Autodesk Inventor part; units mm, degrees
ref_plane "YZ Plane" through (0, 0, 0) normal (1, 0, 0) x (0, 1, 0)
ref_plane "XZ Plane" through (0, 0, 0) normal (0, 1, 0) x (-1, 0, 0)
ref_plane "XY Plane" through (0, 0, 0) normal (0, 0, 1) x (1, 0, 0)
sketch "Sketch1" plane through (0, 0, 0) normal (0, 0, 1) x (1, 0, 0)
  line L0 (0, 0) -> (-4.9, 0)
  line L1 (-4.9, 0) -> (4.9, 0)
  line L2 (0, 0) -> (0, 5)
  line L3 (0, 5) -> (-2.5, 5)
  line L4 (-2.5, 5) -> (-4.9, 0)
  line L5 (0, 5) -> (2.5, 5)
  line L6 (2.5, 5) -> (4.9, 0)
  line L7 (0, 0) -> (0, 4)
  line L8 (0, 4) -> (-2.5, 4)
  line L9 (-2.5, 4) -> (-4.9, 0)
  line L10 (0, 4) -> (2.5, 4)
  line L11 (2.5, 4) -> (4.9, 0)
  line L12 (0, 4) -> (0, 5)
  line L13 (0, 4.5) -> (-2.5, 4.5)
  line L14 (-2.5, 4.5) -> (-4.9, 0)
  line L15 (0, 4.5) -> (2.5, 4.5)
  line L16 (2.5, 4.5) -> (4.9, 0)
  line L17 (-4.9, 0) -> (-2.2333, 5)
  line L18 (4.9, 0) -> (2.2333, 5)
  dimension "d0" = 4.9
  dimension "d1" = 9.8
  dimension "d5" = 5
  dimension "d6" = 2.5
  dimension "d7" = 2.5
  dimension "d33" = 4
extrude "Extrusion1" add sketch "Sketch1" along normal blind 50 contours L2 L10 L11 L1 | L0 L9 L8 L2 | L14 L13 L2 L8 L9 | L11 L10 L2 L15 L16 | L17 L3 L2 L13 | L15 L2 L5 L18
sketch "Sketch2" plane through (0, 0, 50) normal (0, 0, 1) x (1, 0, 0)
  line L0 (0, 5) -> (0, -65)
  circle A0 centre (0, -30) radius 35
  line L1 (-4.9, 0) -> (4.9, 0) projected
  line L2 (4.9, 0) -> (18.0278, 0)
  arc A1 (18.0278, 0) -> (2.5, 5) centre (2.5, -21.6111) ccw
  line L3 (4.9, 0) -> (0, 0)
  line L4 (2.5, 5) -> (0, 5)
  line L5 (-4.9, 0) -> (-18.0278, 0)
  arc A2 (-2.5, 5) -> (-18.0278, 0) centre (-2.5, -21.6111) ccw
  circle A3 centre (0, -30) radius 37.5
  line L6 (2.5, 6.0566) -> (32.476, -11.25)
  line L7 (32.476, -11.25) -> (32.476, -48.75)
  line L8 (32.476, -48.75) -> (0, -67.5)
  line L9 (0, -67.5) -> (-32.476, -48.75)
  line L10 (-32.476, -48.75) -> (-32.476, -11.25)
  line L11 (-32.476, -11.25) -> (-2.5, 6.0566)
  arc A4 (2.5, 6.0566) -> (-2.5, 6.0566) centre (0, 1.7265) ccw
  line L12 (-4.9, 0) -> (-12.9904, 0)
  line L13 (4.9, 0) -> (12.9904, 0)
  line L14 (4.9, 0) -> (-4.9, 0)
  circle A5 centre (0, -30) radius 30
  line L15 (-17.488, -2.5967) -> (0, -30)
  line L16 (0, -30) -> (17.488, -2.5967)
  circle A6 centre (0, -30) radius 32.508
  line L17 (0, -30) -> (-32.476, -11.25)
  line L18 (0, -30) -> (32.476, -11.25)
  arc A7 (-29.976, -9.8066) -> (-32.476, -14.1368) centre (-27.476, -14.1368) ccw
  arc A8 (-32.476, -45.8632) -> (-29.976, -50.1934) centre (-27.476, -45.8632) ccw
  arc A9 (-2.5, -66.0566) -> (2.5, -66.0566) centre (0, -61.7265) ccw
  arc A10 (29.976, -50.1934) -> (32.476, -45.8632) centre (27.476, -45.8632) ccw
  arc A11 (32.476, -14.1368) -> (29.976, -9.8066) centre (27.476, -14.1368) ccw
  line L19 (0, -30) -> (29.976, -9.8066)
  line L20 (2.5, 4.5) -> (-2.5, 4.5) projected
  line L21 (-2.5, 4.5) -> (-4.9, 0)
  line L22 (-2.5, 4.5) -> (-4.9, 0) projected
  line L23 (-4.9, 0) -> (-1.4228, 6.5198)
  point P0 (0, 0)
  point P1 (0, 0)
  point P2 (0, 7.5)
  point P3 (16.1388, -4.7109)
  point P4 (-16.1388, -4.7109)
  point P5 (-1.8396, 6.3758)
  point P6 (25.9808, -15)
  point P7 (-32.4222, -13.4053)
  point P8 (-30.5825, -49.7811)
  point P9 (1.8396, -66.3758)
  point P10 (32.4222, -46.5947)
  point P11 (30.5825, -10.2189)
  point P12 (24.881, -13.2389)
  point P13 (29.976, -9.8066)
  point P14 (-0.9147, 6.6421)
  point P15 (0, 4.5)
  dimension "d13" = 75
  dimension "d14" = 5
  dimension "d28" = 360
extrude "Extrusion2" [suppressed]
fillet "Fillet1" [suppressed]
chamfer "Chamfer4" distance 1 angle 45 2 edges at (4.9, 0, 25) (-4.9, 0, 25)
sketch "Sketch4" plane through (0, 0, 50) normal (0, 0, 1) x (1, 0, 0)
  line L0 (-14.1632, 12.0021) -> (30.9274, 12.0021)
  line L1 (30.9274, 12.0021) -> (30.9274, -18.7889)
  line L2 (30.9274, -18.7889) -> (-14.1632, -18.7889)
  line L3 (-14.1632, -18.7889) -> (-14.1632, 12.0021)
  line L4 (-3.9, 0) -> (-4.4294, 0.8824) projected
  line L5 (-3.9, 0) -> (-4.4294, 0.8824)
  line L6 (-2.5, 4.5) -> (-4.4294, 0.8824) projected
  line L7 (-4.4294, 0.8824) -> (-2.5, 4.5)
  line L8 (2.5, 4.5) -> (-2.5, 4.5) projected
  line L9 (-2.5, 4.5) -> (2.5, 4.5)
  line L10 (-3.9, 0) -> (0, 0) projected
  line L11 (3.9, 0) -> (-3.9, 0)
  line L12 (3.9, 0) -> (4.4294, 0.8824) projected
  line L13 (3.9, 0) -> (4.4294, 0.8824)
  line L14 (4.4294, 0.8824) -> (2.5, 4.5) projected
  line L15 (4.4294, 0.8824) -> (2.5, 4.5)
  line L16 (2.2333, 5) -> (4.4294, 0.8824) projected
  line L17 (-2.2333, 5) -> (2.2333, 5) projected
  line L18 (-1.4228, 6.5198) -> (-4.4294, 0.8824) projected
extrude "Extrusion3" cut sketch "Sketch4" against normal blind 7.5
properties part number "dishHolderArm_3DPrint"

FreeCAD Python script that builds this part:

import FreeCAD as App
import Part
import Sketcher

V = App.Vector


def edges_at(feature, points):
    """Names of the edges that pass closest to the given points."""
    edges = feature.Shape.Edges
    near = lambda p: min(range(len(edges)), key=lambda i: edges[i].distToShape(Part.Vertex(*p))[0])
    return sorted({f"Edge{near(p) + 1}" for p in points})


def add_polygon(sketch, points):
    """Adds a closed chain of lines whose ends are joined by coincident constraints."""
    first, n = sketch.GeometryCount, len(points)
    for a, b in zip(points, points[1:] + points[:1]):
        sketch.addGeometry(Part.LineSegment(App.Vector(*a, 0), App.Vector(*b, 0)), False)
    for i in range(n):
        sketch.addConstraint(Sketcher.Constraint("Coincident", first + i, 2, first + (i + 1) % n, 1))

doc = App.newDocument("Part")
body = doc.addObject("PartDesign::Body", "Body")

# Sketch on XY plane
sketch1 = body.newObject("Sketcher::SketchObject", "Sketch")
sketch1.AttachmentSupport = (doc.getObject("XY_Plane"), [""])
sketch1.MapMode = "FlatFace"
add_polygon(sketch1, [(4.9, 0), (2.5, 4.5), (2.2, 5), (-2.2, 5), (-2.5, 4.5), (-4.9, 0)])  # lines 0-5
sketch1.addConstraint([
    Sketcher.Constraint("Horizontal", 2),
    Sketcher.Constraint("Horizontal", 5),
    Sketcher.Constraint("Symmetric", 4, 2, 5, 2, -1, 1),
    Sketcher.Constraint("Symmetric", 0, 2, 3, 2, -2),
    Sketcher.Constraint("Parallel", 0, 1),
    Sketcher.Constraint("Parallel", 3, 4),
    Sketcher.Constraint("DistanceX", 5, 1, 5, 2, 9.8),
    Sketcher.Constraint("DistanceY", -1, 1, 1, 2, 5.0),
    Sketcher.Constraint("DistanceX", 3, 2, 0, 2, 5.0),
    Sketcher.Constraint("Distance", 0, 5.1),
])
pad1 = body.newObject("PartDesign::Pad", "Pad")
pad1.Profile = sketch1
pad1.Length = 50
doc.recompute()

chamfer = body.newObject("PartDesign::Chamfer", "Chamfer")
chamfer.Base = (pad1, edges_at(pad1, [(4.9, 0, 25), (-4.9, 0, 25)]))
chamfer.Size = 1

# Sketch on XY plane
sketch2 = body.newObject("Sketcher::SketchObject", "Sketch001")
sketch2.AttachmentSupport = (doc.getObject("XY_Plane"), [""])
sketch2.MapMode = "FlatFace"
sketch2.AttachmentOffset = App.Placement(V(0, 0, 50), App.Rotation())
add_polygon(sketch2, [(30.9, 12), (-14.2, 12), (-14.2, -18.8), (30.9, -18.8)])  # lines 0-3
add_polygon(sketch2, [(3.9, 0), (-3.9, 0), (-4.4, 0.9), (-2.5, 4.5), (-2.2, 5), (2.2, 5), (2.5, 4.5), (4.4, 0.9)])  # lines 4-11
sketch2.addConstraint([
    Sketcher.Constraint("Horizontal", 0),
    Sketcher.Constraint("Vertical", 1),
    Sketcher.Constraint("Horizontal", 2),
    Sketcher.Constraint("Vertical", 3),
    Sketcher.Constraint("Horizontal", 4),
    Sketcher.Constraint("Horizontal", 8),
    Sketcher.Constraint("Symmetric", 4, 2, 11, 2, -1, 1),
    Sketcher.Constraint("Symmetric", 6, 2, 9, 2, -2),
    Sketcher.Constraint("Symmetric", 5, 2, 10, 2, -2),
    Sketcher.Constraint("Parallel", 6, 7),
    Sketcher.Constraint("Parallel", 9, 10),
    Sketcher.Constraint("DistanceX", 4, 2, 4, 1, 7.8),
    Sketcher.Constraint("DistanceY", -1, 1, 7, 2, 5.0),
    Sketcher.Constraint("DistanceX", 6, 2, 9, 2, 5.0),
    Sketcher.Constraint("Distance", 6, 4.1),
    Sketcher.Constraint("DistanceY", -1, 1, 6, 2, 4.5),
    Sketcher.Constraint("DistanceY", 1, 2, 1, 1, 30.791),
    Sketcher.Constraint("Distance", 5, 1.029),
    Sketcher.Constraint("DistanceX", 0, 2, 0, 1, 45.0906),
    Sketcher.Constraint("DistanceY", -1, 1, 0, 2, 12.002),
    Sketcher.Constraint("DistanceX", 0, 2, -1, 1, 14.1632),
])
pocket1 = body.newObject("PartDesign::Pocket", "Pocket")
pocket1.Profile = sketch2
pocket1.Length = 7.5

doc.recompute()
